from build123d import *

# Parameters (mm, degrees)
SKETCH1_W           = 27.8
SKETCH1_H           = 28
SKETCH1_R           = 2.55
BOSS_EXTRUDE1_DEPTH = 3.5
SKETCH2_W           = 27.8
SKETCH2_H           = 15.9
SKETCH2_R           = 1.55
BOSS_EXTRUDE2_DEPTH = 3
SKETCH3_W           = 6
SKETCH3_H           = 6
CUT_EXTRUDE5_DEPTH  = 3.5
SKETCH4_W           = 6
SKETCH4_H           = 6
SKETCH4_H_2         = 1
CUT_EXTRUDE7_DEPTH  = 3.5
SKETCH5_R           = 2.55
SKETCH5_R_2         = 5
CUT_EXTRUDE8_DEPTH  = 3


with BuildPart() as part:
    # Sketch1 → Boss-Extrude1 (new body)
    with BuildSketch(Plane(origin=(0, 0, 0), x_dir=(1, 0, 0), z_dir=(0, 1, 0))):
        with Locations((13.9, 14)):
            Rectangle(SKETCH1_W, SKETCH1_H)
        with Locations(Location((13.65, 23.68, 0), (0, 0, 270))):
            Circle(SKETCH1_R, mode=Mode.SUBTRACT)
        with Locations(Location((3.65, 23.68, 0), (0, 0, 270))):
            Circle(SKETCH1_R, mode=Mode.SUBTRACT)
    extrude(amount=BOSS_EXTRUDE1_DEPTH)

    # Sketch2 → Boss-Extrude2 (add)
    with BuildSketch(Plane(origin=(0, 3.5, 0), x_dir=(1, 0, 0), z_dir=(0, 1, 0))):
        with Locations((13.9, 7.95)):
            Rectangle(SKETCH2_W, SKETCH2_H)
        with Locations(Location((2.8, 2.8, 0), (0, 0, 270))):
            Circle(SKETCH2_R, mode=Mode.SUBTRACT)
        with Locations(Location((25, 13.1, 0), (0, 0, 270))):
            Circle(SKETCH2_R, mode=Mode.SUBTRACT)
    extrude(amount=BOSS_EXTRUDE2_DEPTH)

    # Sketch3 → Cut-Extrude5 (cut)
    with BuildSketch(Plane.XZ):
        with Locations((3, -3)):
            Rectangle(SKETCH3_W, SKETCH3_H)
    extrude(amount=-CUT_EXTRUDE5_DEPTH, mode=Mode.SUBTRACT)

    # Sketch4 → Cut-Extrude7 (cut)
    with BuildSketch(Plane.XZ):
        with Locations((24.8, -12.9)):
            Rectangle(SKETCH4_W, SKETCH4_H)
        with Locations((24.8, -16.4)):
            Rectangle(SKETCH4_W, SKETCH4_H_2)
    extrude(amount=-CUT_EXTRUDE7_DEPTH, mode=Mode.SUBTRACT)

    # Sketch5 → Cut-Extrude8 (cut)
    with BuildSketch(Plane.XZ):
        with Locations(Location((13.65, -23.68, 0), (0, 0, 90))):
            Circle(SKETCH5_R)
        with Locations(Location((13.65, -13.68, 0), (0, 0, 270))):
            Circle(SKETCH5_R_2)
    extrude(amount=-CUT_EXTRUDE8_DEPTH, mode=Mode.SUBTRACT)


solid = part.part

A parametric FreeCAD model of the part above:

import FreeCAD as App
import Part
import Sketcher

V = App.Vector


def add_polygon(sketch, points):
    """Adds a closed chain of lines whose ends are joined by coincident constraints."""
    first, n = sketch.GeometryCount, len(points)
    for a, b in zip(points, points[1:] + points[:1]):
        sketch.addGeometry(Part.LineSegment(App.Vector(*a, 0), App.Vector(*b, 0)), False)
    for i in range(n):
        sketch.addConstraint(Sketcher.Constraint("Coincident", first + i, 2, first + (i + 1) % n, 1))

doc = App.newDocument("Part")
body = doc.addObject("PartDesign::Body", "Body")

# Sketch on XZ plane
sketch1 = body.newObject("Sketcher::SketchObject", "Sketch")
sketch1.AttachmentSupport = (doc.getObject("XZ_Plane"), [""])
sketch1.MapMode = "FlatFace"
add_polygon(sketch1, [(0, -28), (0, 0), (27.8, 0), (27.8, -28)])  # lines 0-3
sketch1.addGeometry(Part.Circle(V(3.65, -23.68, 0), V(0, 0, 1), 2.55), False)  # 4
sketch1.addGeometry(Part.Circle(V(13.65, -23.68, 0), V(0, 0, 1), 2.55), False)  # 5
sketch1.addConstraint(Sketcher.Constraint("Vertical", 0))
sketch1.addConstraint(Sketcher.Constraint("Horizontal", 1))
sketch1.addConstraint(Sketcher.Constraint("Vertical", 2))
sketch1.addConstraint(Sketcher.Constraint("Horizontal", 3))
sketch1.addConstraint(Sketcher.Constraint("Coincident", 0, 2, -1, 1))
sketch1.addConstraint(Sketcher.Constraint("Equal", 4, 5))
sketch1.addConstraint(Sketcher.Constraint("Horizontal", 4, 3, 5, 3))
sketch1.addConstraint(Sketcher.Constraint("Diameter", 4, 5.1))
sketch1.addConstraint(Sketcher.Constraint("DistanceY", 0, 1, 0, 2, 28.0))
sketch1.addConstraint(Sketcher.Constraint("DistanceX", 1, 1, 1, 2, 27.8))
sketch1.addConstraint(Sketcher.Constraint("DistanceX", 4, 3, 5, 3, 10.0))
sketch1.addConstraint(Sketcher.Constraint("DistanceX", -1, 1, 4, 3, 3.65))
sketch1.addConstraint(Sketcher.Constraint("DistanceY", 4, 3, -1, 1, 23.68))
pad1 = body.newObject("PartDesign::Pad", "Pad")
pad1.Profile = sketch1
pad1.Length = 3.5
pad1.Reversed = True

# Sketch on XZ plane
sketch2 = body.newObject("Sketcher::SketchObject", "Sketch001")
sketch2.AttachmentSupport = (doc.getObject("XZ_Plane"), [""])
sketch2.MapMode = "FlatFace"
sketch2.AttachmentOffset = App.Placement(V(0, 0, -3.5), App.Rotation())
add_polygon(sketch2, [(0, -15.9), (0, 0), (27.8, 0), (27.8, -15.9)])  # lines 0-3
sketch2.addGeometry(Part.Circle(V(2.8, -2.8, 0), V(0, 0, 1), 1.55), False)  # 4
sketch2.addGeometry(Part.Circle(V(25, -13.1, 0), V(0, 0, 1), 1.55), False)  # 5
sketch2.addConstraint(Sketcher.Constraint("Vertical", 0))
sketch2.addConstraint(Sketcher.Constraint("Horizontal", 1))
sketch2.addConstraint(Sketcher.Constraint("Vertical", 2))
sketch2.addConstraint(Sketcher.Constraint("Horizontal", 3))
sketch2.addConstraint(Sketcher.Constraint("Coincident", 0, 2, -1, 1))
sketch2.addConstraint(Sketcher.Constraint("Equal", 4, 5))
sketch2.addConstraint(Sketcher.Constraint("Diameter", 4, 3.1))
sketch2.addConstraint(Sketcher.Constraint("DistanceX", 1, 1, 1, 2, 27.8))
sketch2.addConstraint(Sketcher.Constraint("DistanceY", 0, 1, 0, 2, 15.9))
sketch2.addConstraint(Sketcher.Constraint("DistanceX", -1, 1, 5, 3, 25.0))
sketch2.addConstraint(Sketcher.Constraint("DistanceX", 4, 3, 1, 2, 25.0))
sketch2.addConstraint(Sketcher.Constraint("DistanceY", 4, 3, -1, 1, 2.8))
sketch2.addConstraint(Sketcher.Constraint("DistanceY", 5, 3, -1, 1, 13.1))
pad2 = body.newObject("PartDesign::Pad", "Pad001")
pad2.Profile = sketch2
pad2.Length = 3
pad2.Reversed = True

# Sketch on XZ plane
sketch3 = body.newObject("Sketcher::SketchObject", "Sketch002")
sketch3.AttachmentSupport = (doc.getObject("XZ_Plane"), [""])
sketch3.MapMode = "FlatFace"
add_polygon(sketch3, [(0, 0), (0, -6), (6, -6), (6, 0)])  # lines 0-3
sketch3.addConstraint(Sketcher.Constraint("Vertical", 0))
sketch3.addConstraint(Sketcher.Constraint("Horizontal", 1))
sketch3.addConstraint(Sketcher.Constraint("Vertical", 2))
sketch3.addConstraint(Sketcher.Constraint("Horizontal", 3))
sketch3.addConstraint(Sketcher.Constraint("Coincident", 3, 2, -1, 1))
sketch3.addConstraint(Sketcher.Constraint("Equal", 3, 0))
sketch3.addConstraint(Sketcher.Constraint("DistanceX", 1, 1, 1, 2, 6.0))
pocket1 = body.newObject("PartDesign::Pocket", "Pocket")
pocket1.Profile = sketch3
pocket1.Length = 3.5

# Sketch on XZ plane
sketch4 = body.newObject("Sketcher::SketchObject", "Sketch003")
sketch4.AttachmentSupport = (doc.getObject("XZ_Plane"), [""])
sketch4.MapMode = "FlatFace"
add_polygon(sketch4, [(21.8, -9.9), (21.8, -16.9), (27.8, -16.9), (27.8, -9.9)])  # lines 0-3
sketch4.addConstraint(Sketcher.Constraint("Vertical", 0))
sketch4.addConstraint(Sketcher.Constraint("Horizontal", 1))
sketch4.addConstraint(Sketcher.Constraint("Vertical", 2))
sketch4.addConstraint(Sketcher.Constraint("Horizontal", 3))
sketch4.addConstraint(Sketcher.Constraint("DistanceX", 1, 1, 1, 2, 6.0))
sketch4.addConstraint(Sketcher.Constraint("DistanceY", 0, 2, 0, 1, 7.0))
sketch4.addConstraint(Sketcher.Constraint("DistanceX", -1, 1, 0, 2, 21.8))
sketch4.addConstraint(Sketcher.Constraint("DistanceY", 0, 2, -1, 1, 16.9))
pocket2 = body.newObject("PartDesign::Pocket", "Pocket001")
pocket2.Profile = sketch4
pocket2.Length = 3.5

# Sketch on XZ plane
sketch5 = body.newObject("Sketcher::SketchObject", "Sketch004")
sketch5.AttachmentSupport = (doc.getObject("XZ_Plane"), [""])
sketch5.MapMode = "FlatFace"
sketch5.addGeometry(Part.Circle(V(13.65, -23.68, 0), V(0, 0, 1), 2.55), False)
sketch5.addGeometry(Part.Circle(V(13.65, -13.68, 0), V(0, 0, 1), 5), False)
sketch5.addConstraint(Sketcher.Constraint("Vertical", 0, 3, 1, 3))
sketch5.addConstraint(Sketcher.Constraint("Diameter", 1, 10.0))
sketch5.addConstraint(Sketcher.Constraint("Diameter", 0, 5.1))
sketch5.addConstraint(Sketcher.Constraint("DistanceY", 0, 3, 1, 3, 10.0))
sketch5.addConstraint(Sketcher.Constraint("DistanceX", -1, 1, 0, 3, 13.65))
sketch5.addConstraint(Sketcher.Constraint("DistanceY", 0, 3, -1, 1, 23.68))
pocket3 = body.newObject("PartDesign::Pocket", "Pocket002")
pocket3.Profile = sketch5
pocket3.Length = 3

doc.recompute()
